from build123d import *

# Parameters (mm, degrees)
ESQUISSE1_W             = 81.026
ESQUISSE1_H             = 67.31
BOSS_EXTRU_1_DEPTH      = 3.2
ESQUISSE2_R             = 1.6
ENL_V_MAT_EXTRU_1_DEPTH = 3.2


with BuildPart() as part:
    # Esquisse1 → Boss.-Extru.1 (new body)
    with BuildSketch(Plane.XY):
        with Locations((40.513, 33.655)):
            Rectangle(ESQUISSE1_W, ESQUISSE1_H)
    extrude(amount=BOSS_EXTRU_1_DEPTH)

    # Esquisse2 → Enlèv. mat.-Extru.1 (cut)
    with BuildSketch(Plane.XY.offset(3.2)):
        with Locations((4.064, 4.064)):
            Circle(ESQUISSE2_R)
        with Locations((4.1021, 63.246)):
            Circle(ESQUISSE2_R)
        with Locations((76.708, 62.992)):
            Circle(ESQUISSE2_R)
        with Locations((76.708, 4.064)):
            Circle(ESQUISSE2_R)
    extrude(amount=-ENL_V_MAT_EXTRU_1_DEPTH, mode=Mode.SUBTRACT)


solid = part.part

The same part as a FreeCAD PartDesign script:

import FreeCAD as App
import Part
import Sketcher
Q = App.Units.Quantity


def add_polygon(sketch, points):
    """Adds a closed chain of lines whose ends are joined by coincident constraints."""
    first, n = sketch.GeometryCount, len(points)
    for a, b in zip(points, points[1:] + points[:1]):
        sketch.addGeometry(Part.LineSegment(App.Vector(*a, 0), App.Vector(*b, 0)), False)
    for i in range(n):
        sketch.addConstraint(Sketcher.Constraint("Coincident", first + i, 2, first + (i + 1) % n, 1))

doc = App.newDocument("Part")
body = doc.addObject("PartDesign::Body", "Body")

sketch1 = body.newObject("Sketcher::SketchObject", "Sketch")
sketch1.AttachmentSupport = (doc.getObject("XY_Plane"), [""])
sketch1.MapMode = "FlatFace"
add_polygon(sketch1, [(0, 67), (0, 0), (81, 0), (81, 67)])
sketch1.addConstraint(Sketcher.Constraint("Vertical", 0))
sketch1.addConstraint(Sketcher.Constraint("Horizontal", 1))
sketch1.addConstraint(Sketcher.Constraint("Vertical", 2))
sketch1.addConstraint(Sketcher.Constraint("Horizontal", 3))
sketch1.addConstraint(Sketcher.Constraint("Coincident", 0, 2, -1, 1))
sketch1.addConstraint(Sketcher.Constraint("DistanceX", 1, 1, 1, 2, Q("3.19 in")))
sketch1.addConstraint(Sketcher.Constraint("DistanceY", 0, 2, 0, 1, Q("2.65 in")))
pad1 = body.newObject("PartDesign::Pad", "Pad")
pad1.Profile = sketch1
pad1.Length = 3.2

sketch2 = body.newObject("Sketcher::SketchObject", "Sketch001")
sketch2.AttachmentSupport = (doc.getObject("XY_Plane"), [""])
sketch2.MapMode = "FlatFace"
sketch2.AttachmentOffset = App.Placement(App.Vector(0, 0, 3.2), App.Rotation())
sketch2.addGeometry(Part.Circle(App.Vector(4.1, 4.1, 0), App.Vector(0, 0, 1), 1.6), False)
sketch2.addGeometry(Part.Circle(App.Vector(4.1, 63.2, 0), App.Vector(0, 0, 1), 1.6), False)
sketch2.addGeometry(Part.Circle(App.Vector(76.7, 63, 0), App.Vector(0, 0, 1), 1.6), False)
sketch2.addGeometry(Part.Circle(App.Vector(76.7, 4.1, 0), App.Vector(0, 0, 1), 1.6), False)
sketch2.addConstraint(Sketcher.Constraint("Equal", 0, 1))
sketch2.addConstraint(Sketcher.Constraint("Equal", 1, 2))
sketch2.addConstraint(Sketcher.Constraint("Equal", 2, 3))
sketch2.addConstraint(Sketcher.Constraint("Horizontal", 0, 3, 3, 3))
sketch2.addConstraint(Sketcher.Constraint("Vertical", 2, 3, 3, 3))
sketch2.addConstraint(Sketcher.Constraint("Diameter", 0, 3.2))
sketch2.addConstraint(Sketcher.Constraint("DistanceX", -1, 1, 0, 3, Q("0.16 in")))
sketch2.addConstraint(Sketcher.Constraint("DistanceY", -1, 1, 0, 3, Q("0.16 in")))
sketch2.addConstraint(Sketcher.Constraint("DistanceY", -1, 1, 1, 3, Q("2.49 in")))
sketch2.addConstraint(Sketcher.Constraint("DistanceX", -1, 1, 2, 3, Q("3.02 in")))
sketch2.addConstraint(Sketcher.Constraint("DistanceY", -1, 1, 2, 3, Q("2.48 in")))
sketch2.addConstraint(Sketcher.Constraint("DistanceX", -1, 1, 1, 3, Q("0.1615 in")))
pocket1 = body.newObject("PartDesign::Pocket", "Pocket")
pocket1.Profile = sketch2
pocket1.Length = 3.2

doc.recompute()
